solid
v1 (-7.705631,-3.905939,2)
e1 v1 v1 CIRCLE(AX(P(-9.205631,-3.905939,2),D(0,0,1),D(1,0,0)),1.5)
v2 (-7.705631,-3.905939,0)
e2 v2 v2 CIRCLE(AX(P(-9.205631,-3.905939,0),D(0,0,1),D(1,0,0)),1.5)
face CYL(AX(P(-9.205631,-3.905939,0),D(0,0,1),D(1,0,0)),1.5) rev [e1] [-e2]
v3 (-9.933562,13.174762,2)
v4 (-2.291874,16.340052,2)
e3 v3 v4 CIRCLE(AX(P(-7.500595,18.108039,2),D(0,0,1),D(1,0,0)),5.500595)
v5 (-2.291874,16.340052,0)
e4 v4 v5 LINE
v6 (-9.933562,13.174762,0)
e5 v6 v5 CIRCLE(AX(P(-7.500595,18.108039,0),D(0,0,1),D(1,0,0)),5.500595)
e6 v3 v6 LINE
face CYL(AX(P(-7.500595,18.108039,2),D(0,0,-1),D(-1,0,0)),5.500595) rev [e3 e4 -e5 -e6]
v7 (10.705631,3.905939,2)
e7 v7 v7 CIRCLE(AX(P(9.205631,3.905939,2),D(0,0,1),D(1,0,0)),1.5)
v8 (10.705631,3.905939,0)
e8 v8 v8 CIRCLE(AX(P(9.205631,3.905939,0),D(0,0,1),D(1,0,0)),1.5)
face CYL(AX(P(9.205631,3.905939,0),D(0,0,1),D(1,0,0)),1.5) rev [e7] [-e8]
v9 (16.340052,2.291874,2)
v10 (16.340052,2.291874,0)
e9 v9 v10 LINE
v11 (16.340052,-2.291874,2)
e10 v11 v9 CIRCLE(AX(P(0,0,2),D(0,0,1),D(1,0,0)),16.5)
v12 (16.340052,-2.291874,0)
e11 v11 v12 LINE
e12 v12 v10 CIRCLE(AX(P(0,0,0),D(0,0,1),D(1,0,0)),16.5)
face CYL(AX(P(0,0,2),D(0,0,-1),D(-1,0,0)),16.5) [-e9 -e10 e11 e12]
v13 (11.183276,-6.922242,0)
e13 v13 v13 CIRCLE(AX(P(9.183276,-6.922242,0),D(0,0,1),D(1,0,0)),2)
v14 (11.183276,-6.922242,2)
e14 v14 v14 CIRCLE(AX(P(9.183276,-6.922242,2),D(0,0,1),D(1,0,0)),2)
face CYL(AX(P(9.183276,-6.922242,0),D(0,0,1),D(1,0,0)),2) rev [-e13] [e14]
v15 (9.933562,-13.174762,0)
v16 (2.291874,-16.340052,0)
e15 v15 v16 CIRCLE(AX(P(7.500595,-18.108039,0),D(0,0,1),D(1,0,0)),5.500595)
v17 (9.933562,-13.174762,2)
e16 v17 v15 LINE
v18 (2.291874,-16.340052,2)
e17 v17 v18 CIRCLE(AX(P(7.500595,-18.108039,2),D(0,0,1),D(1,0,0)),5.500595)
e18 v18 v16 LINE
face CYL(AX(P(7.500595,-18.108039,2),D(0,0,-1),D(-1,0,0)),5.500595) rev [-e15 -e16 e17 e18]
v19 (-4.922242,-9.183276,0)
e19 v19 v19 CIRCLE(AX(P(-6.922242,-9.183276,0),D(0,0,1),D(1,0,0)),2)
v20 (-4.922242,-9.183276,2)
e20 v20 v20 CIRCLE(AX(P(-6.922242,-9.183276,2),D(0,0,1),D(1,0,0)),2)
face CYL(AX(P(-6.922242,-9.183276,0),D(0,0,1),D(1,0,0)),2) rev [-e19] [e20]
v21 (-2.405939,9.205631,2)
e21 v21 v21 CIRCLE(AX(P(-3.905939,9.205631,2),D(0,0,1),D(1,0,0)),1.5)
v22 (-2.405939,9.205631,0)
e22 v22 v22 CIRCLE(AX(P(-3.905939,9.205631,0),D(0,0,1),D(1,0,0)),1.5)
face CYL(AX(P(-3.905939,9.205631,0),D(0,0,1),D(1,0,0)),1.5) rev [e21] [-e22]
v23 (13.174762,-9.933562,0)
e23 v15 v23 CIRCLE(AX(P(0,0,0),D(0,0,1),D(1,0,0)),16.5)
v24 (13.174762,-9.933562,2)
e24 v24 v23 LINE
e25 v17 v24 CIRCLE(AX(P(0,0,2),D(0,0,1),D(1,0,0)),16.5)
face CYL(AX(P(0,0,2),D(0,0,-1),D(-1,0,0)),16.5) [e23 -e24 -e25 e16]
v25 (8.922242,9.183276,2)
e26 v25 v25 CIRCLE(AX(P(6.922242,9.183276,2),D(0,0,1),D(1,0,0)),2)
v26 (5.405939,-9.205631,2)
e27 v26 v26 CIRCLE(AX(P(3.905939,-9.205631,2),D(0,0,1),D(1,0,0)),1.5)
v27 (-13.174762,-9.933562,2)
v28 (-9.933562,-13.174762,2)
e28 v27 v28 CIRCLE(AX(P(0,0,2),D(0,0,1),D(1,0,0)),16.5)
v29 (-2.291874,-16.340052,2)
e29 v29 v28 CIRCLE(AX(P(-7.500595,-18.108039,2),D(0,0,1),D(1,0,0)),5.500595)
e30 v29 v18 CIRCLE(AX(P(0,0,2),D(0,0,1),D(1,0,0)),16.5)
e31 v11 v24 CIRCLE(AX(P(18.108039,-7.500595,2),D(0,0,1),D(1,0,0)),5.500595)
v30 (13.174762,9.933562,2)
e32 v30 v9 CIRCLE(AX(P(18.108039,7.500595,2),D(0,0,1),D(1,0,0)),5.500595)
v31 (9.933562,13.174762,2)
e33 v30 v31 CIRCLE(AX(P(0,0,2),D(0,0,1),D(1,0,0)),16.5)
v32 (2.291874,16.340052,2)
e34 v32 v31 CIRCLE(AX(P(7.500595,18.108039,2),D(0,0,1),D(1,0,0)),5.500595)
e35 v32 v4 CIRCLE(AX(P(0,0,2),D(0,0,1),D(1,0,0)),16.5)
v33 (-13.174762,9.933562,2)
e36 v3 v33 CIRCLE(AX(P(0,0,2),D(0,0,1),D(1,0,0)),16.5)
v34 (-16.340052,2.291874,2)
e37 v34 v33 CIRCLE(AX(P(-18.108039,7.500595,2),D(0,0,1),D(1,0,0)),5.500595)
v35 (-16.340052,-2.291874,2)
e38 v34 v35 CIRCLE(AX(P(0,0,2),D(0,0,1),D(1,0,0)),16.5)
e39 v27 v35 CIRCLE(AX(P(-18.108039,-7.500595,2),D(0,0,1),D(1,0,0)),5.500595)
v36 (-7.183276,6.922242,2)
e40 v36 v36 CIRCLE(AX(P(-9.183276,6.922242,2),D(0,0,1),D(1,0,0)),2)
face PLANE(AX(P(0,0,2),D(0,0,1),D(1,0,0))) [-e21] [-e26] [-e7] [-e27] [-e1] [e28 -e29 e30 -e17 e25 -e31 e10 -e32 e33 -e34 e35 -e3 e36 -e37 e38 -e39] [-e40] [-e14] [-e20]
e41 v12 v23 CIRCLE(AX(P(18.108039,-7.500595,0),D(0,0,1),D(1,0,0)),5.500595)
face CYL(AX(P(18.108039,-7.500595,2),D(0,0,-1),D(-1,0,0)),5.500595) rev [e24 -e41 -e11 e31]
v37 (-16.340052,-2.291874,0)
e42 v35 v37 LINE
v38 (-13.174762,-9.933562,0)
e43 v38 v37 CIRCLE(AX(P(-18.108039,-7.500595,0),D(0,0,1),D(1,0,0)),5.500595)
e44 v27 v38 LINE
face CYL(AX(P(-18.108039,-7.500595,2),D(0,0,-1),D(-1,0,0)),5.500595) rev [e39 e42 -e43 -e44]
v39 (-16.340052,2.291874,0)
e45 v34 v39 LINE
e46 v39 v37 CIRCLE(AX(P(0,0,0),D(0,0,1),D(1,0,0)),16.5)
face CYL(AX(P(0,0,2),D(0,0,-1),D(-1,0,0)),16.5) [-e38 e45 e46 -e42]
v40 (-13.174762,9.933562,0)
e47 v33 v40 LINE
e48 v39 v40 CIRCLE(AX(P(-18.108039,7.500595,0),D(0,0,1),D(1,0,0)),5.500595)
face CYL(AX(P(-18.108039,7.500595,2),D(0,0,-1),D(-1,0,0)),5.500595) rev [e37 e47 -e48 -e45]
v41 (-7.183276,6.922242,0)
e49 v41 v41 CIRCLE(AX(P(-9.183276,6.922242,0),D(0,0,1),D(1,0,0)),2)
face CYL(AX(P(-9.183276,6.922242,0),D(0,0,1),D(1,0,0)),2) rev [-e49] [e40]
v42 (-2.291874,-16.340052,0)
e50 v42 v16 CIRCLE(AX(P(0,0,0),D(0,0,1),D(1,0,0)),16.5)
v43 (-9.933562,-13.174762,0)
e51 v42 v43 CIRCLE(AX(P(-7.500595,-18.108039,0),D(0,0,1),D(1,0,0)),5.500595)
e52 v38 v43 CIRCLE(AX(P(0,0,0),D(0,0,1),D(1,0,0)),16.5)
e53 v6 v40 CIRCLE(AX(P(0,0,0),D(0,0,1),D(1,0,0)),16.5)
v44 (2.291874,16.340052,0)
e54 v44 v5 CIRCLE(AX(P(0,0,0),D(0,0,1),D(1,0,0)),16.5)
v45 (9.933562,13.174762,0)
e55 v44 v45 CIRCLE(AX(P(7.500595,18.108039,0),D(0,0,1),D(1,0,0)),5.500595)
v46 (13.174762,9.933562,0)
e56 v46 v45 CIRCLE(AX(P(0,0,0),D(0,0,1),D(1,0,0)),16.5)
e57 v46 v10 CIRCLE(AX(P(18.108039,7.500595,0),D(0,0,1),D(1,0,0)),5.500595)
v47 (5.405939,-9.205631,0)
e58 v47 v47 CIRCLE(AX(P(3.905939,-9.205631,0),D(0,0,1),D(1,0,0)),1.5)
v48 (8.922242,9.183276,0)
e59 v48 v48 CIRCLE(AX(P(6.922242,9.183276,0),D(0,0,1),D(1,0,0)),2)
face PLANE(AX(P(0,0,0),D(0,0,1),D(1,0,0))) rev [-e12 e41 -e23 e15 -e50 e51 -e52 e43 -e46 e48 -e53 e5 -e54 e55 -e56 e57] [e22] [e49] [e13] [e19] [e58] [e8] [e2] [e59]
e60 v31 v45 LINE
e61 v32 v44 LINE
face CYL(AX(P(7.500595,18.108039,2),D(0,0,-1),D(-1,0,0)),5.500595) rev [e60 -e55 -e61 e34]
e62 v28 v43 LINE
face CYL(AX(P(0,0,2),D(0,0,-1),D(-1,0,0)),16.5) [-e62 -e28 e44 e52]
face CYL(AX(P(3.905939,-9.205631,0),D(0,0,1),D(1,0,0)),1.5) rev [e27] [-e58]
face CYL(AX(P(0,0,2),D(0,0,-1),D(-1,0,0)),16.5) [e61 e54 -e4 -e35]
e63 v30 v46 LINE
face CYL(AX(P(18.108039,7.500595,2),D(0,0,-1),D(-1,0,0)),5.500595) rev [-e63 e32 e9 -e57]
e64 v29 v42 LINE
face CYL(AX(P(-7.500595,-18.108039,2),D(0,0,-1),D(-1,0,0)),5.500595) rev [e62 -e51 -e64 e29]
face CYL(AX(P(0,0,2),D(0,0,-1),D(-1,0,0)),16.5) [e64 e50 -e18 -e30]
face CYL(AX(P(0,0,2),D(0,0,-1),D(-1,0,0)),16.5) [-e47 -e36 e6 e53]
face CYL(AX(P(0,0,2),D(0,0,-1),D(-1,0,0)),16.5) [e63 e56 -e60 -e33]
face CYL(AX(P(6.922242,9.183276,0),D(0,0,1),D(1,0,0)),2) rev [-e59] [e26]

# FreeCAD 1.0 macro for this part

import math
import FreeCAD as App
import Part
import Sketcher
Q = App.Units.Quantity

doc = App.newDocument("Part")
body = doc.addObject("PartDesign::Body", "Body")

# Sketch on XY plane
sketch1 = body.newObject("Sketcher::SketchObject", "Sketch")
sketch1.AttachmentSupport = (doc.getObject("XY_Plane"), [""])
sketch1.MapMode = "FlatFace"
sketch1.addGeometry(Part.ArcOfCircle(Part.Circle(App.Vector(0, 0, 0), App.Vector(0, 0, 1), 16.5), math.radians(82.02), math.radians(90)), False)
sketch1.addGeometry(Part.ArcOfCircle(Part.Circle(App.Vector(0, 0, 0), App.Vector(0, 0, 1), 16.5), math.radians(90), math.radians(97.98)), False)
sketch1.addGeometry(Part.ArcOfCircle(Part.Circle(App.Vector(-7.5, 18.1, 0), App.Vector(0, 0, 1), 5.5), math.radians(-116), math.radians(-19)), False)
sketch1.addGeometry(Part.ArcOfCircle(Part.Circle(App.Vector(0, 0, 0), App.Vector(0, 0, 1), 16.5), math.radians(127.02), math.radians(135)), False)
sketch1.addGeometry(Part.ArcOfCircle(Part.Circle(App.Vector(0, 0, 0), App.Vector(0, 0, 1), 16.5), math.radians(135), math.radians(142.98)), False)
sketch1.addGeometry(Part.ArcOfCircle(Part.Circle(App.Vector(-18.1, 7.5, 0), App.Vector(0, 0, 1), 5.5), math.radians(-71), math.radians(26)), False)
sketch1.addGeometry(Part.ArcOfCircle(Part.Circle(App.Vector(0, 0, 0), App.Vector(0, 0, 1), 16.5), math.radians(172.02), math.radians(187.98)), False)
sketch1.addGeometry(Part.ArcOfCircle(Part.Circle(App.Vector(-18.1, -7.5, 0), App.Vector(0, 0, 1), 5.5), math.radians(-26), math.radians(71)), False)
sketch1.addGeometry(Part.ArcOfCircle(Part.Circle(App.Vector(0, 0, 0), App.Vector(0, 0, 1), 16.5), math.radians(-142.98), math.radians(-127.02)), False)
sketch1.addGeometry(Part.ArcOfCircle(Part.Circle(App.Vector(-7.5, -18.1, 0), App.Vector(0, 0, 1), 5.5), math.radians(19), math.radians(116)), False)
sketch1.addGeometry(Part.ArcOfCircle(Part.Circle(App.Vector(0, 0, 0), App.Vector(0, 0, 1), 16.5), math.radians(-97.98), math.radians(-82.02)), False)
sketch1.addGeometry(Part.ArcOfCircle(Part.Circle(App.Vector(7.5, -18.1, 0), App.Vector(0, 0, 1), 5.5), math.radians(64), math.radians(161)), False)
sketch1.addGeometry(Part.ArcOfCircle(Part.Circle(App.Vector(0, 0, 0), App.Vector(0, 0, 1), 16.5), math.radians(-52.98), math.radians(-37.02)), False)
sketch1.addGeometry(Part.ArcOfCircle(Part.Circle(App.Vector(18.1, -7.5, 0), App.Vector(0, 0, 1), 5.5), math.radians(109), math.radians(206)), False)
sketch1.addGeometry(Part.ArcOfCircle(Part.Circle(App.Vector(0, 0, 0), App.Vector(0, 0, 1), 16.5), math.radians(-7.98), math.radians(0)), False)
sketch1.addGeometry(Part.ArcOfCircle(Part.Circle(App.Vector(0, 0, 0), App.Vector(0, 0, 1), 16.5), math.radians(0), math.radians(7.98)), False)
sketch1.addGeometry(Part.ArcOfCircle(Part.Circle(App.Vector(18.1, 7.5, 0), App.Vector(0, 0, 1), 5.5), math.radians(154), math.radians(251)), False)
sketch1.addGeometry(Part.ArcOfCircle(Part.Circle(App.Vector(0, 0, 0), App.Vector(0, 0, 1), 16.5), math.radians(37.02), math.radians(52.98)), False)
sketch1.addGeometry(Part.ArcOfCircle(Part.Circle(App.Vector(7.5, 18.1, 0), App.Vector(0, 0, 1), 5.5), math.radians(-161), math.radians(-64)), False)
sketch1.addConstraint(Sketcher.Constraint("Tangent", 0, 2, 1, 1))
sketch1.addConstraint(Sketcher.Constraint("Coincident", 1, 2, 2, 2))
sketch1.addConstraint(Sketcher.Constraint("Coincident", 2, 1, 3, 1))
sketch1.addConstraint(Sketcher.Constraint("Tangent", 3, 2, 4, 1))
sketch1.addConstraint(Sketcher.Constraint("Coincident", 4, 2, 5, 2))
sketch1.addConstraint(Sketcher.Constraint("Coincident", 5, 1, 6, 1))
sketch1.addConstraint(Sketcher.Constraint("Coincident", 6, 2, 7, 2))
sketch1.addConstraint(Sketcher.Constraint("Coincident", 7, 1, 8, 1))
sketch1.addConstraint(Sketcher.Constraint("Coincident", 8, 2, 9, 2))
sketch1.addConstraint(Sketcher.Constraint("Coincident", 9, 1, 10, 1))
sketch1.addConstraint(Sketcher.Constraint("Coincident", 10, 2, 11, 2))
sketch1.addConstraint(Sketcher.Constraint("Coincident", 11, 1, 12, 1))
sketch1.addConstraint(Sketcher.Constraint("Coincident", 12, 2, 13, 2))
sketch1.addConstraint(Sketcher.Constraint("Coincident", 13, 1, 14, 1))
sketch1.addConstraint(Sketcher.Constraint("Tangent", 14, 2, 15, 1))
sketch1.addConstraint(Sketcher.Constraint("Coincident", 15, 2, 16, 2))
sketch1.addConstraint(Sketcher.Constraint("Coincident", 16, 1, 17, 1))
sketch1.addConstraint(Sketcher.Constraint("Coincident", 17, 2, 18, 2))
sketch1.addConstraint(Sketcher.Constraint("Coincident", 18, 1, 0, 1))
sketch1.addConstraint(Sketcher.Constraint("Coincident", 0, 3, -1, 1))
sketch1.addConstraint(Sketcher.Constraint("Coincident", 3, 3, -1, 1))
sketch1.addConstraint(Sketcher.Constraint("Coincident", 6, 3, -1, 1))
sketch1.addConstraint(Sketcher.Constraint("Coincident", 8, 3, -1, 1))
sketch1.addConstraint(Sketcher.Constraint("Coincident", 10, 3, -1, 1))
sketch1.addConstraint(Sketcher.Constraint("Coincident", 12, 3, -1, 1))
sketch1.addConstraint(Sketcher.Constraint("Coincident", 14, 3, -1, 1))
sketch1.addConstraint(Sketcher.Constraint("Coincident", 17, 3, -1, 1))
sketch1.addConstraint(Sketcher.Constraint("Equal", 0, 1))
sketch1.addConstraint(Sketcher.Constraint("Equal", 1, 3))
sketch1.addConstraint(Sketcher.Constraint("Equal", 3, 4))
sketch1.addConstraint(Sketcher.Constraint("Equal", 2, 5))
sketch1.addConstraint(Sketcher.Constraint("Equal", 4, 6))
sketch1.addConstraint(Sketcher.Constraint("Equal", 5, 7))
sketch1.addConstraint(Sketcher.Constraint("Equal", 6, 8))
sketch1.addConstraint(Sketcher.Constraint("Equal", 7, 9))
sketch1.addConstraint(Sketcher.Constraint("Equal", 8, 10))
sketch1.addConstraint(Sketcher.Constraint("Equal", 9, 11))
sketch1.addConstraint(Sketcher.Constraint("Equal", 10, 12))
sketch1.addConstraint(Sketcher.Constraint("Equal", 11, 13))
sketch1.addConstraint(Sketcher.Constraint("Equal", 12, 14))
sketch1.addConstraint(Sketcher.Constraint("Equal", 14, 15))
sketch1.addConstraint(Sketcher.Constraint("Equal", 13, 16))
sketch1.addConstraint(Sketcher.Constraint("Equal", 15, 17))
sketch1.addConstraint(Sketcher.Constraint("Equal", 16, 18))
sketch1.addConstraint(Sketcher.Constraint("Symmetric", 2, 3, 11, 3, -1, 1))
sketch1.addConstraint(Sketcher.Constraint("Symmetric", 5, 3, 13, 3, -1, 1))
sketch1.addConstraint(Sketcher.Constraint("Symmetric", 7, 3, 16, 3, -1, 1))
sketch1.addConstraint(Sketcher.Constraint("Symmetric", 9, 3, 18, 3, -1, 1))
sketch1.addConstraint(Sketcher.Constraint("Symmetric", 9, 3, 11, 3, -2))
sketch1.addConstraint(Sketcher.Constraint("Symmetric", 7, 3, 13, 3, -2))
sketch1.addConstraint(Sketcher.Constraint("PointOnObject", 0, 2, -2))
sketch1.addConstraint(Sketcher.Constraint("PointOnObject", 14, 2, -1))
sketch1.addConstraint(Sketcher.Constraint("Radius", 0, Q("16.5 mm")))
sketch1.addConstraint(Sketcher.Constraint("Radius", 2, Q("5.500595 mm")))
sketch1.addConstraint(Sketcher.Constraint("DistanceX", 3, 2, 2, 1, Q("1.7337 mm")))
sketch1.addConstraint(Sketcher.Constraint("DistanceY", 3, 2, 2, 1, Q("1.5075 mm")))
sketch1.addConstraint(Sketcher.Constraint("DistanceX", 4, 2, 3, 2, Q("1.5075 mm")))
sketch1.addConstraint(Sketcher.Constraint("DistanceY", -1, 1, 2, 3, Q("18.108039 mm")))
sketch1.addConstraint(Sketcher.Constraint("DistanceX", 5, 3, -1, 1, Q("18.108039 mm")))
pad1 = body.newObject("PartDesign::Pad", "Pad")
pad1.Profile = sketch1
pad1.Length = 2

# Sketch on XY plane
sketch2 = body.newObject("Sketcher::SketchObject", "Sketch001")
sketch2.AttachmentSupport = (doc.getObject("XY_Plane"), [""])
sketch2.MapMode = "FlatFace"
sketch2.AttachmentOffset = App.Placement(App.Vector(0, 0, 2), App.Rotation())
sketch2.addGeometry(Part.Circle(App.Vector(9.2, 3.9, 0), App.Vector(0, 0, 1), 1.5), False)
sketch2.addGeometry(Part.Circle(App.Vector(6.9, 9.2, 0), App.Vector(0, 0, 1), 2), False)
sketch2.addGeometry(Part.Circle(App.Vector(9.2, -6.9, 0), App.Vector(0, 0, 1), 2), False)
sketch2.addGeometry(Part.Circle(App.Vector(3.9, -9.2, 0), App.Vector(0, 0, 1), 1.5), False)
sketch2.addGeometry(Part.Circle(App.Vector(-6.9, -9.2, 0), App.Vector(0, 0, 1), 2), False)
sketch2.addGeometry(Part.Circle(App.Vector(-9.2, -3.9, 0), App.Vector(0, 0, 1), 1.5), False)
sketch2.addGeometry(Part.Circle(App.Vector(-9.2, 6.9, 0), App.Vector(0, 0, 1), 2), False)
sketch2.addGeometry(Part.Circle(App.Vector(-3.9, 9.2, 0), App.Vector(0, 0, 1), 1.5), False)
sketch2.addConstraint(Sketcher.Constraint("Equal", 1, 2))
sketch2.addConstraint(Sketcher.Constraint("Equal", 0, 3))
sketch2.addConstraint(Sketcher.Constraint("Equal", 2, 4))
sketch2.addConstraint(Sketcher.Constraint("Equal", 3, 5))
sketch2.addConstraint(Sketcher.Constraint("Equal", 4, 6))
sketch2.addConstraint(Sketcher.Constraint("Equal", 5, 7))
sketch2.addConstraint(Sketcher.Constraint("Symmetric", 1, 3, 4, 3, -1, 1))
sketch2.addConstraint(Sketcher.Constraint("Symmetric", 0, 3, 5, 3, -1, 1))
sketch2.addConstraint(Sketcher.Constraint("Symmetric", 2, 3, 6, 3, -1, 1))
sketch2.addConstraint(Sketcher.Constraint("Symmetric", 3, 3, 7, 3, -1, 1))
sketch2.addConstraint(Sketcher.Constraint("Diameter", 0, Q("3 mm")))
sketch2.addConstraint(Sketcher.Constraint("Diameter", 1, Q("4 mm")))
sketch2.addConstraint(Sketcher.Constraint("DistanceX", -1, 1, 0, 3, Q("9.205631 mm")))
sketch2.addConstraint(Sketcher.Constraint("DistanceY", -1, 1, 0, 3, Q("3.905939 mm")))
sketch2.addConstraint(Sketcher.Constraint("DistanceX", -1, 1, 3, 3, Q("3.905939 mm")))
sketch2.addConstraint(Sketcher.Constraint("DistanceY", 3, 3, -1, 1, Q("9.205631 mm")))
sketch2.addConstraint(Sketcher.Constraint("DistanceX", 1, 3, 0, 3, Q("2.283389 mm")))
sketch2.addConstraint(Sketcher.Constraint("DistanceY", 2, 3, 0, 3, Q("10.828181 mm")))
sketch2.addConstraint(Sketcher.Constraint("DistanceY", 2, 3, 1, 3, Q("16.105518 mm")))
sketch2.addConstraint(Sketcher.Constraint("DistanceX", 4, 3, 2, 3, Q("16.105518 mm")))
pocket1 = body.newObject("PartDesign::Pocket", "Pocket")
pocket1.Profile = sketch2
pocket1.Type = "ThroughAll"

doc.recompute()
